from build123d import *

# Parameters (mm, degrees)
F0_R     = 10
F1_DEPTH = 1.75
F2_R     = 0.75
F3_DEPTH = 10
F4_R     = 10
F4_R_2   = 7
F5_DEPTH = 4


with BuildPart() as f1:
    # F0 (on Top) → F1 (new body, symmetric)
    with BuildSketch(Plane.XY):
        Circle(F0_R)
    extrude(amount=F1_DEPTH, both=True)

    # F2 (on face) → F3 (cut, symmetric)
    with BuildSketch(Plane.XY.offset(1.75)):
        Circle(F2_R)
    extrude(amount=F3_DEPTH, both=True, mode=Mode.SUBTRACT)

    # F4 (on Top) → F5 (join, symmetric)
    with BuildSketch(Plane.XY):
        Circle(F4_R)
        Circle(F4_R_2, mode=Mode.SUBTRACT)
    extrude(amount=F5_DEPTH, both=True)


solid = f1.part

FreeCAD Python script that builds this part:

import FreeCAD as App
import Part
import Sketcher
from FreeCAD import Vector

doc = App.newDocument("Part")
body = doc.addObject("PartDesign::Body", "Body")

sketch1 = body.newObject("Sketcher::SketchObject", "Sketch")
sketch1.AttachmentSupport = (doc.getObject("XY_Plane"), [""])
sketch1.MapMode = "FlatFace"
sketch1.addGeometry(Part.Circle(Vector(0, 0, 0), Vector(0, 0, 1), 10), False)
sketch1.addConstraint(Sketcher.Constraint("Coincident", 0, 3, -1, 1))
sketch1.addConstraint(Sketcher.Constraint("Diameter", 0, 20.0))
pad1 = body.newObject("PartDesign::Pad", "Pad")
pad1.Profile = sketch1
pad1.Length = 3.5
pad1.Midplane = True

sketch2 = body.newObject("Sketcher::SketchObject", "Sketch001")
sketch2.AttachmentSupport = (doc.getObject("XY_Plane"), [""])
sketch2.MapMode = "FlatFace"
sketch2.AttachmentOffset = App.Placement(Vector(0, 0, 1.75), App.Rotation())
sketch2.addGeometry(Part.Circle(Vector(0, 0, 0), Vector(0, 0, 1), 0.75), False)
sketch2.addConstraint(Sketcher.Constraint("Coincident", 0, 3, -1, 1))
sketch2.addConstraint(Sketcher.Constraint("Diameter", 0, 1.5))
pocket1 = body.newObject("PartDesign::Pocket", "Pocket")
pocket1.Profile = sketch2
pocket1.Length = 20
pocket1.Midplane = True

sketch3 = body.newObject("Sketcher::SketchObject", "Sketch002")
sketch3.AttachmentSupport = (doc.getObject("XY_Plane"), [""])
sketch3.MapMode = "FlatFace"
sketch3.addGeometry(Part.Circle(Vector(0, 0, 0), Vector(0, 0, 1), 10), False)
sketch3.addGeometry(Part.Circle(Vector(0, 0, 0), Vector(0, 0, 1), 7), False)
sketch3.addConstraint(Sketcher.Constraint("Coincident", 0, 3, -1, 1))
sketch3.addConstraint(Sketcher.Constraint("Coincident", 1, 3, -1, 1))
sketch3.addConstraint(Sketcher.Constraint("Diameter", 0, 20.0))
sketch3.addConstraint(Sketcher.Constraint("Diameter", 1, 14.0))
pad2 = body.newObject("PartDesign::Pad", "Pad001")
pad2.Profile = sketch3
pad2.Length = 8
pad2.Midplane = True

doc.recompute()
